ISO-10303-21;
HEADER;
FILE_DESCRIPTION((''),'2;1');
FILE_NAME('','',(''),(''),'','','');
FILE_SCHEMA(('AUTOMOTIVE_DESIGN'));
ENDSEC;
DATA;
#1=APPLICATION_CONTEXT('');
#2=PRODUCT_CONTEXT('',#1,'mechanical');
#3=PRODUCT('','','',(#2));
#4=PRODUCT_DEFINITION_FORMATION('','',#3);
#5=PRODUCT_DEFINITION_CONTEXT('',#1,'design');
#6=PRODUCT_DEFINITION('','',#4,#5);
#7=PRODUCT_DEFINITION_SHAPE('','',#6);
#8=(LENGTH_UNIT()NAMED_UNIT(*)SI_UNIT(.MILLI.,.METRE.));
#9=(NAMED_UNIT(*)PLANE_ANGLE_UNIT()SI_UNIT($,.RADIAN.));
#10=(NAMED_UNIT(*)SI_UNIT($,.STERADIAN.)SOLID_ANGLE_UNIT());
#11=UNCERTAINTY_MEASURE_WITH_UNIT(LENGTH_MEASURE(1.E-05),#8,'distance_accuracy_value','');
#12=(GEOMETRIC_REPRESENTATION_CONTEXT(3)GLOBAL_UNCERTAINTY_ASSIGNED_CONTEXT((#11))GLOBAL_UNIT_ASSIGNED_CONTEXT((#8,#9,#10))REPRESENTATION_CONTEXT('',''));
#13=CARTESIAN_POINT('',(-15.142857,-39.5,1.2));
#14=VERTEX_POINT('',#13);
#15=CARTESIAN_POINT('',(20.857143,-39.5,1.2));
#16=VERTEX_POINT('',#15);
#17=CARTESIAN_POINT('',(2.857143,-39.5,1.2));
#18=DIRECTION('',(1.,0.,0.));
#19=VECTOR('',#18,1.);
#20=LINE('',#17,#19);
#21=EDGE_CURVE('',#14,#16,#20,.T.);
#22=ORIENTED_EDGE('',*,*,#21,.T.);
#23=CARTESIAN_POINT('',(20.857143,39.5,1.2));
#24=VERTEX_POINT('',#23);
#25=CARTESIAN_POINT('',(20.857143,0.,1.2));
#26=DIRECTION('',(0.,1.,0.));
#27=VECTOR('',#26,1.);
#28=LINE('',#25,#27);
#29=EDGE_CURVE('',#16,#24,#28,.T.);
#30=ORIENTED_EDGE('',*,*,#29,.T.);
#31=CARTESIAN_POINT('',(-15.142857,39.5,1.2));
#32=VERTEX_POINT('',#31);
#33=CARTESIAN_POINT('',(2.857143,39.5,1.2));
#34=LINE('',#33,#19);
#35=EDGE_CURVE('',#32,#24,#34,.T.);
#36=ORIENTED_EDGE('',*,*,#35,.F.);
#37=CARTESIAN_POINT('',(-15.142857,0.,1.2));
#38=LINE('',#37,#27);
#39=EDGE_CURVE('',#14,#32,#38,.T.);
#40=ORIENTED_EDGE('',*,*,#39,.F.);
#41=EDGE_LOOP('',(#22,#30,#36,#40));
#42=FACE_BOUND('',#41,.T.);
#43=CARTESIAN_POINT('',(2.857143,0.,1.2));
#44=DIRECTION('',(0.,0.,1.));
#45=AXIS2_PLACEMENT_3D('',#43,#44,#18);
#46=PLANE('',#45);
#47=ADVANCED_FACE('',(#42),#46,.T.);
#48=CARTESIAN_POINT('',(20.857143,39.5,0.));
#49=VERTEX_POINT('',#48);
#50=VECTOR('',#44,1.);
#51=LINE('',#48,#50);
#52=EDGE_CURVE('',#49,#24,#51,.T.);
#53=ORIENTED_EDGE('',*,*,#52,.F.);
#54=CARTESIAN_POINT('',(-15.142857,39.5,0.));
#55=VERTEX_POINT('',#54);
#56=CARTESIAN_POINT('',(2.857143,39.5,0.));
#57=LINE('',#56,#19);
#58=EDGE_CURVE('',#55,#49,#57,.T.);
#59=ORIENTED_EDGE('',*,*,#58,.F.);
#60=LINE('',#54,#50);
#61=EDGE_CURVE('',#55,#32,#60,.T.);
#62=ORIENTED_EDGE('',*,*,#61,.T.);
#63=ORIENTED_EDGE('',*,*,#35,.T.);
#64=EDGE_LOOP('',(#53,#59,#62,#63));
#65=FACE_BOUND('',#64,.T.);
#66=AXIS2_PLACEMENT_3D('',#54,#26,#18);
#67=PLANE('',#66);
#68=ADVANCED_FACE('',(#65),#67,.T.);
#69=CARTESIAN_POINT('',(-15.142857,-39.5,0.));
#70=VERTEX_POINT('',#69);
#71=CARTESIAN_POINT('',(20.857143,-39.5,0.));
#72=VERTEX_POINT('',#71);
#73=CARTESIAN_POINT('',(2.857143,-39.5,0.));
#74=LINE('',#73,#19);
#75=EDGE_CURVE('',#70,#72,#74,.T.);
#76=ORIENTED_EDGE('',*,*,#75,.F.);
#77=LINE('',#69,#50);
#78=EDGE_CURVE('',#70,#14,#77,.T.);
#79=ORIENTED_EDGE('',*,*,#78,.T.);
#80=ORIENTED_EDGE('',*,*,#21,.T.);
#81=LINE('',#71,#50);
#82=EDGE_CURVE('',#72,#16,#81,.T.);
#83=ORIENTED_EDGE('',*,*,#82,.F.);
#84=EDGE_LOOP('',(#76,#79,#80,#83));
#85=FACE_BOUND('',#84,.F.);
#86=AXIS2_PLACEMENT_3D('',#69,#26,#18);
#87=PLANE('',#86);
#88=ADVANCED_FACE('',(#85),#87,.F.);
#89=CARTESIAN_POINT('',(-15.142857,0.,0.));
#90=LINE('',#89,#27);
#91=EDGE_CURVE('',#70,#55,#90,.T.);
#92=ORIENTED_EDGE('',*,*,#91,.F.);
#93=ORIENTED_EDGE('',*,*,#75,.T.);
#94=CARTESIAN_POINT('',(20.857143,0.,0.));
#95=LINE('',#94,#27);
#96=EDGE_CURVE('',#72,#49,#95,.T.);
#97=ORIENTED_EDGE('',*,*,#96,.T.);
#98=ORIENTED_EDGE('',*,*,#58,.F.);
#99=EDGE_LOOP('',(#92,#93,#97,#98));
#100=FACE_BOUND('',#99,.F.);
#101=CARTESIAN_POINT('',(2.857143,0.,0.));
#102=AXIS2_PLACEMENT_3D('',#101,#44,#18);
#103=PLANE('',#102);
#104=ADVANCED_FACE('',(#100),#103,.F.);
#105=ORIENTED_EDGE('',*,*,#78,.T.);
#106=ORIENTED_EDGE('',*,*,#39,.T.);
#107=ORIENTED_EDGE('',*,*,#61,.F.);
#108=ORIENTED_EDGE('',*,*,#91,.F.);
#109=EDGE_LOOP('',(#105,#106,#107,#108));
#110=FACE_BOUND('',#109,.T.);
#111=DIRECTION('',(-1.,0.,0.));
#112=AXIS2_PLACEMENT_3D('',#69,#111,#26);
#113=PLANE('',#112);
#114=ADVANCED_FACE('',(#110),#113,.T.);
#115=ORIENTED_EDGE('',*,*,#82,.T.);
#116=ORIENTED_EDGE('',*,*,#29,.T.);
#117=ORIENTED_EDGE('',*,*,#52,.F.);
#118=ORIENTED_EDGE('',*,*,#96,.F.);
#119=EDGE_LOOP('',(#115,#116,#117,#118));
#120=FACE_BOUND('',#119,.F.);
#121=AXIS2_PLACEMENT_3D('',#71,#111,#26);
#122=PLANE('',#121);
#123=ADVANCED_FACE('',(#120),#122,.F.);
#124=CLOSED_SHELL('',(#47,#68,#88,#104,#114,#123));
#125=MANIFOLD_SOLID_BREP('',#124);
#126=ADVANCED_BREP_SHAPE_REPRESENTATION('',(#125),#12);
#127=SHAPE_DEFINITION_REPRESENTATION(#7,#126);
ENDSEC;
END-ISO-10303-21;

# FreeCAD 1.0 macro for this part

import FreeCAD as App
import Part
import Sketcher

V = App.Vector
Q = App.Units.Quantity


def add_polygon(sketch, points):
    """Adds a closed chain of lines whose ends are joined by coincident constraints."""
    first, n = sketch.GeometryCount, len(points)
    for a, b in zip(points, points[1:] + points[:1]):
        sketch.addGeometry(Part.LineSegment(App.Vector(*a, 0), App.Vector(*b, 0)), False)
    for i in range(n):
        sketch.addConstraint(Sketcher.Constraint("Coincident", first + i, 2, first + (i + 1) % n, 1))

doc = App.newDocument("Part")
params = doc.addObject("Spreadsheet::Sheet", "Params")
for row, (alias, value) in enumerate([
    ("sketch1_width", "36 mm"),
    ("sketch1_height", "79 mm"),
    ("pad1_length", "1.2 mm"),
], start=1):
    params.set(f"A{row}", alias)
    params.set(f"B{row}", "=" + value)
    params.setAlias(f"B{row}", alias)

body = doc.addObject("PartDesign::Body", "Body")

sketch1 = body.newObject("Sketcher::SketchObject", "Sketch")
sketch1.AttachmentSupport = (doc.getObject("XY_Plane"), [""])
sketch1.MapMode = "FlatFace"
add_polygon(sketch1, [(-15.142857, 39.5), (-15.142857, -39.5), (20.857143, -39.5), (20.857143, 39.5)])
sketch1.addConstraint([
    Sketcher.Constraint("Vertical", 0),
    Sketcher.Constraint("Horizontal", 1),
    Sketcher.Constraint("Vertical", 2),
    Sketcher.Constraint("Horizontal", 3),
    Sketcher.Constraint("DistanceX", 1, 1, 1, 2, Q("36 mm")),
    Sketcher.Constraint("DistanceY", 0, 2, 0, 1, Q("79 mm")),
    Sketcher.Constraint("DistanceY", 0, 2, -1, 1, Q("39.5 mm")),
    Sketcher.Constraint("DistanceX", 0, 2, -1, 1, Q("15.142857 mm")),
])
sketch1.setExpression("Constraints[8]", "Params.sketch1_width")
sketch1.setExpression("Constraints[9]", "Params.sketch1_height")
pad1 = body.newObject("PartDesign::Pad", "Pad")
pad1.Profile = sketch1
pad1.setExpression("Length", "Params.pad1_length")

doc.recompute()
